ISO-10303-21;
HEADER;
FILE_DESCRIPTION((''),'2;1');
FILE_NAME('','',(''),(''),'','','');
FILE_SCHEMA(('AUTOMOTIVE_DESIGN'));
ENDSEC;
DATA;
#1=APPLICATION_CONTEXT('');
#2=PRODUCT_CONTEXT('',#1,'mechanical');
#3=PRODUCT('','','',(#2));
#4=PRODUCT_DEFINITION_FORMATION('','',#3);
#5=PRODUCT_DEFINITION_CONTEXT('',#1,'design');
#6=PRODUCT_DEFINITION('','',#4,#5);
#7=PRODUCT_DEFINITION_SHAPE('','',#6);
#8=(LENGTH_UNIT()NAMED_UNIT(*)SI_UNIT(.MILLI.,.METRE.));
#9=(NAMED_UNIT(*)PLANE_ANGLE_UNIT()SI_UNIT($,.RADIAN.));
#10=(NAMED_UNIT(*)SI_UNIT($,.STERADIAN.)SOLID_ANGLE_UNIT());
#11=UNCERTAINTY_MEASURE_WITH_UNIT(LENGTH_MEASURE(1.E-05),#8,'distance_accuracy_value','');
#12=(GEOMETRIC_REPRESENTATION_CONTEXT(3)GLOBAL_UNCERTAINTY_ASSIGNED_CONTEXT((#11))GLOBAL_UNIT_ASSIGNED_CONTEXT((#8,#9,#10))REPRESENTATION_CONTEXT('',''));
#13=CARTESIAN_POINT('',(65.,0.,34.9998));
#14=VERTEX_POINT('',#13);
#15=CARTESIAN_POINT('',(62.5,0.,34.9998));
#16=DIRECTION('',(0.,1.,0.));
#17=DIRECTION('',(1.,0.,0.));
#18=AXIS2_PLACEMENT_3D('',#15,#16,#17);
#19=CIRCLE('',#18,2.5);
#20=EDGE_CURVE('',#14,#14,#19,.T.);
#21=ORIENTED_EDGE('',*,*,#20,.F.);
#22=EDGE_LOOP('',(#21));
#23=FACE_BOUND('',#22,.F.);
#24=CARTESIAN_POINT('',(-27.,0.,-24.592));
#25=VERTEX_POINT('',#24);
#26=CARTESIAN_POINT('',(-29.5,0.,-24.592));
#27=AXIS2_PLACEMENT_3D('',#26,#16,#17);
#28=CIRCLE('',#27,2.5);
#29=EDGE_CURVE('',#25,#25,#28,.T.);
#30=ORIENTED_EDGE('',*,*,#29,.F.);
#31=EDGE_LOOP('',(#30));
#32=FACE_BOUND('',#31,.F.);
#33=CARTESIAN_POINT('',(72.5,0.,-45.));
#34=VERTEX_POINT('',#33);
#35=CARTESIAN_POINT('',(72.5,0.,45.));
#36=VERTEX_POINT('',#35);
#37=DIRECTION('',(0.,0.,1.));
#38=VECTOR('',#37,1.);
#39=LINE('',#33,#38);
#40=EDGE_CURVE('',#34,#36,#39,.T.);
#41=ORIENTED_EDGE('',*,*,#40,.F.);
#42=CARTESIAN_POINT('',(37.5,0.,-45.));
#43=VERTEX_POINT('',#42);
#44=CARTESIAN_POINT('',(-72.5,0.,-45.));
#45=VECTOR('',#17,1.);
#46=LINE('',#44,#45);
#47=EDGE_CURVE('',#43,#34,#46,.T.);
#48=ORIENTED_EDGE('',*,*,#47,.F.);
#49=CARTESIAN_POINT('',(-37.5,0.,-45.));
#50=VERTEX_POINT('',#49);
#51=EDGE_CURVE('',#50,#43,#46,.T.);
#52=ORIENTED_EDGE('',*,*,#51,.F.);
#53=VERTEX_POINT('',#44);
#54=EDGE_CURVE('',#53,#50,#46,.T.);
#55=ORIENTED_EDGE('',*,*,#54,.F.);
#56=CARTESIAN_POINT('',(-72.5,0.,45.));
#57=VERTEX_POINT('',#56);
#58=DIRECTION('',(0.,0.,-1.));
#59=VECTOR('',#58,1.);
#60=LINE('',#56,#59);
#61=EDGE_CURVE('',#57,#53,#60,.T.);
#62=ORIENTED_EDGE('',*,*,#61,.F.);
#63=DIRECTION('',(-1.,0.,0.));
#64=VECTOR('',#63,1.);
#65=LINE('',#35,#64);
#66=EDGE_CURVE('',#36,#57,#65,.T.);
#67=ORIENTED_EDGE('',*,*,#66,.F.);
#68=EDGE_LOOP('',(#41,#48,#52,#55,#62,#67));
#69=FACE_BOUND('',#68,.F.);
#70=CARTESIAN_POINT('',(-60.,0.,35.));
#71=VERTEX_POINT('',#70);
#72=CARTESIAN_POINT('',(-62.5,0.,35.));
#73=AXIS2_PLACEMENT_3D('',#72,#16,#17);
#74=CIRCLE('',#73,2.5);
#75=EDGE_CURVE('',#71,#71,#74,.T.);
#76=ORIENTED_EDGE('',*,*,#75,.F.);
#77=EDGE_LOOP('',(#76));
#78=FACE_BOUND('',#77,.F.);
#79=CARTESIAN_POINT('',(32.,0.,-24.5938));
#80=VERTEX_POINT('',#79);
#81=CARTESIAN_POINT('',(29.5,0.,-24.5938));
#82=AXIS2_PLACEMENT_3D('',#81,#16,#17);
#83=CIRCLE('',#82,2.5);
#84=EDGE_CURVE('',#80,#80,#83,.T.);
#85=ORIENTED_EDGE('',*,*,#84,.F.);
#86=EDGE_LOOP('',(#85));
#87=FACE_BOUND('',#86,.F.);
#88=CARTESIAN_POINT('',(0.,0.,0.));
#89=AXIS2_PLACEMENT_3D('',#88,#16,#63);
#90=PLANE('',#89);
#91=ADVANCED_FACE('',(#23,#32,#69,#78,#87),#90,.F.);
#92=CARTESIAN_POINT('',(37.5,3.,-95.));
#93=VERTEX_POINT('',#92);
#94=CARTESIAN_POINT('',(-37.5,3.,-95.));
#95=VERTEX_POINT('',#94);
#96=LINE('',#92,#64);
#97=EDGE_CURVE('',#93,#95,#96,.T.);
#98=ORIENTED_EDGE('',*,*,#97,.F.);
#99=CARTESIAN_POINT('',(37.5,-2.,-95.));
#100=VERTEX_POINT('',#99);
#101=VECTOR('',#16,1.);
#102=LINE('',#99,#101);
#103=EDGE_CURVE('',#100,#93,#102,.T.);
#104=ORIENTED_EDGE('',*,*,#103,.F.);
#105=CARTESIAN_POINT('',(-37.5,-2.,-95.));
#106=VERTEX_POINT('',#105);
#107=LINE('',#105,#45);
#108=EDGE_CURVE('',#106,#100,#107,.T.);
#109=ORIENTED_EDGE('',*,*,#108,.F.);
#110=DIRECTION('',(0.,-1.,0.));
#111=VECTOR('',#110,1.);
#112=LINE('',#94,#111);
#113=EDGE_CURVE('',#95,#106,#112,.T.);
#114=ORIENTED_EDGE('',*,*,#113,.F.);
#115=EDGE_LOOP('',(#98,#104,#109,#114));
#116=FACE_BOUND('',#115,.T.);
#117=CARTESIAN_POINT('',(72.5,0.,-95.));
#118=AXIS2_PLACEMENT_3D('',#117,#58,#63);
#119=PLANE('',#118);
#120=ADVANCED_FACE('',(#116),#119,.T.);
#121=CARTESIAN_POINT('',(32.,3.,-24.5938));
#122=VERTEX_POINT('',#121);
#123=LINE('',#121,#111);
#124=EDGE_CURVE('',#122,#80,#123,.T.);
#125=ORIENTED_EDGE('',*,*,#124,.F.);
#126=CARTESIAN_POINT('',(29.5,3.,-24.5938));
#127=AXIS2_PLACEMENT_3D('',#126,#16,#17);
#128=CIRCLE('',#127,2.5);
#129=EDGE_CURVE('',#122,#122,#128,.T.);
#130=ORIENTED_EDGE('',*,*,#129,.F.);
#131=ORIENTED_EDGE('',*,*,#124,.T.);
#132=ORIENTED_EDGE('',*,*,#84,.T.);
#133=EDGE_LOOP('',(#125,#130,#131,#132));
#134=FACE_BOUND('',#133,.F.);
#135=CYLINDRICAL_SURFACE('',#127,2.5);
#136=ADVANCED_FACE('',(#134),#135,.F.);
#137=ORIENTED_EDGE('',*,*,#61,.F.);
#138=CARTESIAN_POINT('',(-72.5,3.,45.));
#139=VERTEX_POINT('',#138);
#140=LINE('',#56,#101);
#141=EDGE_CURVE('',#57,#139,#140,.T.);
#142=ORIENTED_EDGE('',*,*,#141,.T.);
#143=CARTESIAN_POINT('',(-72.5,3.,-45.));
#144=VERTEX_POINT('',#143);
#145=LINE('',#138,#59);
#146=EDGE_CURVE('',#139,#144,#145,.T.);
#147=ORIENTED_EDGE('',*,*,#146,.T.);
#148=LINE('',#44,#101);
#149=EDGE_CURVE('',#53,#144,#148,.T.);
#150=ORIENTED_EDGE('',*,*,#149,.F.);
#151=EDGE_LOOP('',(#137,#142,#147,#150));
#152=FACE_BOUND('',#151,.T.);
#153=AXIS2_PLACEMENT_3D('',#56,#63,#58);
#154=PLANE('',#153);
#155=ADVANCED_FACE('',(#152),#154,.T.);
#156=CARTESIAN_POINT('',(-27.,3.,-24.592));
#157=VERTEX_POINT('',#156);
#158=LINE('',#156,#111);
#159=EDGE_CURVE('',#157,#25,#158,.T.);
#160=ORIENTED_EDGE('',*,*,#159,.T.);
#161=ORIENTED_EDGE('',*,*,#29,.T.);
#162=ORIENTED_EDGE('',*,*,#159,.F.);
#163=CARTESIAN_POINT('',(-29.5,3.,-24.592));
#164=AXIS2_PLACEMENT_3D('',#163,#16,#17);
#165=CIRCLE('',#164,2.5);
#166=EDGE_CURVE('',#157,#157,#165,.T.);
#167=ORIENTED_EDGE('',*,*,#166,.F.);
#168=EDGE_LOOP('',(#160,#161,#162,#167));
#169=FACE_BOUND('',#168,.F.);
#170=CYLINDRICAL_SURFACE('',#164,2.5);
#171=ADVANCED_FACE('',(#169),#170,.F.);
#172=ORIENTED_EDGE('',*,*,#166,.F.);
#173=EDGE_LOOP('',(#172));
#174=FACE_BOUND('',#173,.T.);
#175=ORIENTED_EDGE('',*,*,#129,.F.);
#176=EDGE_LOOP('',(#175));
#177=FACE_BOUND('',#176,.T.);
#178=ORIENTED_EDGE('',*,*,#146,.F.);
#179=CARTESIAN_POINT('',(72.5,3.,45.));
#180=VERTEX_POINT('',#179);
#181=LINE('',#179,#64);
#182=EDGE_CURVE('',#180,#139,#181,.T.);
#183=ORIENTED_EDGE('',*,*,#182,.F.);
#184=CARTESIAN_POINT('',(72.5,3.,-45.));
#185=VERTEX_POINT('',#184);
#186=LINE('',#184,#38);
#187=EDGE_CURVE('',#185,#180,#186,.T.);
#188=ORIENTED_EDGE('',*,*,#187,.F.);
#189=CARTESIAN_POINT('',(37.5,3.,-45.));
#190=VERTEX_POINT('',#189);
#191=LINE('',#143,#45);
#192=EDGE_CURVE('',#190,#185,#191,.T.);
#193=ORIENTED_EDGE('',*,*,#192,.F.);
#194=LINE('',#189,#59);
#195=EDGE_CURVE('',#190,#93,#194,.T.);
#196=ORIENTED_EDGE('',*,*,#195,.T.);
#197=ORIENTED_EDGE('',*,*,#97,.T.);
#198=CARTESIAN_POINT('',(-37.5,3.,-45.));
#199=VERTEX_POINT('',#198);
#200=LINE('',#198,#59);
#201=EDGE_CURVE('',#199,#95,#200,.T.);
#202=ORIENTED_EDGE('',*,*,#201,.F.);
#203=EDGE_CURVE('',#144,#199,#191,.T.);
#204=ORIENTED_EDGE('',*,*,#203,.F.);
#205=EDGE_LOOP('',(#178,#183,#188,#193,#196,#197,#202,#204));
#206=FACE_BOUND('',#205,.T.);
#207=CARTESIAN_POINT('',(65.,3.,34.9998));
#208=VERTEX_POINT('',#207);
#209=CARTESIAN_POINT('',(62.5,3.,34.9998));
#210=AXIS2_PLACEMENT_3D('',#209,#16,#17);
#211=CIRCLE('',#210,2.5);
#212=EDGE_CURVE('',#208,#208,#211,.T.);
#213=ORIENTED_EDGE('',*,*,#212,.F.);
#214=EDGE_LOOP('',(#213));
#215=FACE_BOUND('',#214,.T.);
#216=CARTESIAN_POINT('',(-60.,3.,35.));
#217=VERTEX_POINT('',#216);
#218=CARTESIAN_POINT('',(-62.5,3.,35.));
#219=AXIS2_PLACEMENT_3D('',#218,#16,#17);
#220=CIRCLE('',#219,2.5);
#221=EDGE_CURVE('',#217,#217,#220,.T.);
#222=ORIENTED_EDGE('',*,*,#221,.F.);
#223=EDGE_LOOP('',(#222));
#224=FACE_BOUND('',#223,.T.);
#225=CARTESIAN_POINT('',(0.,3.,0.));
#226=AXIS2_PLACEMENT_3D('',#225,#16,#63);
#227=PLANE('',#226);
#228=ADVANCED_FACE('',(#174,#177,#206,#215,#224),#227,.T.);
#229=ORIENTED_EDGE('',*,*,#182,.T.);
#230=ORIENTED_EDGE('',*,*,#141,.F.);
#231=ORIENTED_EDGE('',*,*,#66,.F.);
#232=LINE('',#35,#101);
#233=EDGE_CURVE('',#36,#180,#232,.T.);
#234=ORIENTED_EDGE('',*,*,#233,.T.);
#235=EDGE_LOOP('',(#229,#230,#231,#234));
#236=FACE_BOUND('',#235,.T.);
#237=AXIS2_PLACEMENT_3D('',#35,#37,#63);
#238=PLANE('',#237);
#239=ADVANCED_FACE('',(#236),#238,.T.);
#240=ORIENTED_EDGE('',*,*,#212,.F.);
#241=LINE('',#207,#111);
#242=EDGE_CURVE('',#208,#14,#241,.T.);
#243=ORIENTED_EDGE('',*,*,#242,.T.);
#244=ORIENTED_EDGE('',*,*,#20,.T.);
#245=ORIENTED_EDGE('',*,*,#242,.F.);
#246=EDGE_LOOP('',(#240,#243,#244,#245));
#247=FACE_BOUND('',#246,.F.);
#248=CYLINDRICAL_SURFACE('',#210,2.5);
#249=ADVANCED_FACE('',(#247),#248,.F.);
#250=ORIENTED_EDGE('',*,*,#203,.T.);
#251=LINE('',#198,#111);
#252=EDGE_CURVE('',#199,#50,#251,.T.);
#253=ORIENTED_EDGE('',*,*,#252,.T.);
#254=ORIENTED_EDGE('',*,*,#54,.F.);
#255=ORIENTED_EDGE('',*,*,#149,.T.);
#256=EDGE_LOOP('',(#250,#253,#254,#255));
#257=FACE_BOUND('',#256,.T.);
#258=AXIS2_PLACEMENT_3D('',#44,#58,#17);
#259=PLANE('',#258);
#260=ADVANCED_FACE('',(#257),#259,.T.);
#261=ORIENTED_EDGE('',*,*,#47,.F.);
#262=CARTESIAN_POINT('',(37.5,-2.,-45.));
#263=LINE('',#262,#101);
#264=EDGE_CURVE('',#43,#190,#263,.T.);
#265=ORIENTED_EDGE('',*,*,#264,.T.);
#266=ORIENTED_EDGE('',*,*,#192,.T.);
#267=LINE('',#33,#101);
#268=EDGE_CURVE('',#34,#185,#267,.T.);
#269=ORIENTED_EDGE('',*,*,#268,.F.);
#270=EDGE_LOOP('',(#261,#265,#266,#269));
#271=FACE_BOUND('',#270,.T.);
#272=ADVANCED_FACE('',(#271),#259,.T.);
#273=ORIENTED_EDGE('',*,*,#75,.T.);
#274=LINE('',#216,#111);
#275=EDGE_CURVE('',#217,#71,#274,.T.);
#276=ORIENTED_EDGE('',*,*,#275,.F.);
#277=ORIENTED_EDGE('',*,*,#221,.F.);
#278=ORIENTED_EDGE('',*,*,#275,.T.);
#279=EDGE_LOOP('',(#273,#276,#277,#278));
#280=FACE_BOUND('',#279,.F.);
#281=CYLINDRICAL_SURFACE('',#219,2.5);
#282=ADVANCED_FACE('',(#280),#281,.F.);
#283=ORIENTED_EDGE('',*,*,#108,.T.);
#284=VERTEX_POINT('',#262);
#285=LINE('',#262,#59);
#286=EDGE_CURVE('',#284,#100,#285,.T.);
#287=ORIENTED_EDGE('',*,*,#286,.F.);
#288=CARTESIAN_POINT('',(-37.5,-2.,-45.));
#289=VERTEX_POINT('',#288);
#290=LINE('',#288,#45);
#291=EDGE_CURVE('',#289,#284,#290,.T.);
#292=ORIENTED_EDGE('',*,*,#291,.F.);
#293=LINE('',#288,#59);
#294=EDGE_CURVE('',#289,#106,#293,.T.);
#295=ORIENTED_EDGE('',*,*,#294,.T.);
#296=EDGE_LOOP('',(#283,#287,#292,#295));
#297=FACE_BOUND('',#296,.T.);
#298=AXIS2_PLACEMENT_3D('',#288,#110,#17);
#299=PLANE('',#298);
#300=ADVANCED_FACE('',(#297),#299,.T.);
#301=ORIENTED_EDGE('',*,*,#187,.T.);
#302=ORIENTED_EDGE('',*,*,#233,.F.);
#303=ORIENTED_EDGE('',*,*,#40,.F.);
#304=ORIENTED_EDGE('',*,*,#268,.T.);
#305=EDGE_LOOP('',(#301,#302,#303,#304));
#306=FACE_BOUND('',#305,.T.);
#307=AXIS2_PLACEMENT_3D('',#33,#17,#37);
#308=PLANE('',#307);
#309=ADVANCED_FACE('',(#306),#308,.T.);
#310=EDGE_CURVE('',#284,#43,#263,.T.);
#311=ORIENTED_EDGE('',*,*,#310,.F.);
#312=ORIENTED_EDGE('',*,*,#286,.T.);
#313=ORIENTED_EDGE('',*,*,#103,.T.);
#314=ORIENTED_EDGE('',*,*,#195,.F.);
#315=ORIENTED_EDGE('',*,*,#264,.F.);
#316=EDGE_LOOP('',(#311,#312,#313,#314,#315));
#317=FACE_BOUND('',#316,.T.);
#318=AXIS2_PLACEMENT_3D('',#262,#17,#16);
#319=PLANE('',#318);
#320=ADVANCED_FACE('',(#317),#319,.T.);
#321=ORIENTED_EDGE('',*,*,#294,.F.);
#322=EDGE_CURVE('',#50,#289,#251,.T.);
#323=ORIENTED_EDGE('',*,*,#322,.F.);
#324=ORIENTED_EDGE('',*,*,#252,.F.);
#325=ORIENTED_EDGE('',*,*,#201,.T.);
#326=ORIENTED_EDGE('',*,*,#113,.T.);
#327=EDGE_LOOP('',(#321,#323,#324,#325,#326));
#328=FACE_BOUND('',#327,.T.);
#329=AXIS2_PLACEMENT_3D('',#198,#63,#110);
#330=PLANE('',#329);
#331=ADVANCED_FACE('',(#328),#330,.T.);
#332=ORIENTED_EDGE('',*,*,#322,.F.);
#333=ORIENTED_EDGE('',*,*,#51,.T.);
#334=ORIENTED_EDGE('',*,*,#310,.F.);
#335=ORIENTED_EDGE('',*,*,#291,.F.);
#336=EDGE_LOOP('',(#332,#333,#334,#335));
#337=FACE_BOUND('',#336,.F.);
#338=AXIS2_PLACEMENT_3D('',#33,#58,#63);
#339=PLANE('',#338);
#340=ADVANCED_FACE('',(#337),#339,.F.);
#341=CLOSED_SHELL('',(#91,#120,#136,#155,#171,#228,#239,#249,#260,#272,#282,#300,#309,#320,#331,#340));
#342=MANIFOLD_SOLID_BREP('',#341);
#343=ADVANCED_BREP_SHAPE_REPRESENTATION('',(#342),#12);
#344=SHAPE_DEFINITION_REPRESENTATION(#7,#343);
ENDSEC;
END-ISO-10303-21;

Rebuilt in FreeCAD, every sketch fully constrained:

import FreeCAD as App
import Part
import Sketcher
Q = App.Units.Quantity

doc = App.newDocument("Part")
body = doc.addObject("PartDesign::Body", "Body")

sketch1 = body.newObject("Sketcher::SketchObject", "Sketch")
sketch1.AttachmentSupport = (doc.getObject("XZ_Plane"), [""])
sketch1.MapMode = "FlatFace"
sketch1.addGeometry(Part.LineSegment(App.Vector(72, -45, 0), App.Vector(-72, -45, 0)), False)
sketch1.addGeometry(Part.LineSegment(App.Vector(-72, -45, 0), App.Vector(-72, 45, 0)), False)
sketch1.addGeometry(Part.LineSegment(App.Vector(-72, 45, 0), App.Vector(72, 45, 0)), False)
sketch1.addGeometry(Part.LineSegment(App.Vector(72, 45, 0), App.Vector(72, -45, 0)), False)
sketch1.addConstraint(Sketcher.Constraint("Coincident", 0, 2, 1, 1))
sketch1.addConstraint(Sketcher.Constraint("Coincident", 1, 2, 2, 1))
sketch1.addConstraint(Sketcher.Constraint("Coincident", 2, 2, 3, 1))
sketch1.addConstraint(Sketcher.Constraint("Coincident", 3, 2, 0, 1))
sketch1.addConstraint(Sketcher.Constraint("Horizontal", 0))
sketch1.addConstraint(Sketcher.Constraint("Vertical", 1))
sketch1.addConstraint(Sketcher.Constraint("Horizontal", 2))
sketch1.addConstraint(Sketcher.Constraint("Vertical", 3))
sketch1.addConstraint(Sketcher.Constraint("Symmetric", 0, 2, 2, 2, -1, 1))
sketch1.addConstraint(Sketcher.Constraint("DistanceX", 0, 2, 0, 1, Q("145 mm")))
sketch1.addConstraint(Sketcher.Constraint("DistanceY", 1, 1, 1, 2, Q("90 mm")))
pad1 = body.newObject("PartDesign::Pad", "Pad")
pad1.Profile = sketch1
pad1.Length = 3
pad1.Reversed = True

sketch2 = body.newObject("Sketcher::SketchObject", "Sketch001")
sketch2.AttachmentSupport = (doc.getObject("XY_Plane"), [""])
sketch2.MapMode = "FlatFace"
sketch2.AttachmentOffset = App.Placement(App.Vector(0, 0, -45), App.Rotation())
sketch2.addGeometry(Part.LineSegment(App.Vector(-38, 3, 0), App.Vector(38, 3, 0)), False)
sketch2.addGeometry(Part.LineSegment(App.Vector(38, 3, 0), App.Vector(38, -2, 0)), False)
sketch2.addGeometry(Part.LineSegment(App.Vector(38, -2, 0), App.Vector(-38, -2, 0)), False)
sketch2.addGeometry(Part.LineSegment(App.Vector(-38, -2, 0), App.Vector(-38, 3, 0)), False)
sketch2.addConstraint(Sketcher.Constraint("Coincident", 0, 2, 1, 1))
sketch2.addConstraint(Sketcher.Constraint("Coincident", 1, 2, 2, 1))
sketch2.addConstraint(Sketcher.Constraint("Coincident", 2, 2, 3, 1))
sketch2.addConstraint(Sketcher.Constraint("Coincident", 3, 2, 0, 1))
sketch2.addConstraint(Sketcher.Constraint("Horizontal", 0))
sketch2.addConstraint(Sketcher.Constraint("Vertical", 1))
sketch2.addConstraint(Sketcher.Constraint("Horizontal", 2))
sketch2.addConstraint(Sketcher.Constraint("Vertical", 3))
sketch2.addConstraint(Sketcher.Constraint("DistanceX", 0, 1, 0, 2, Q("75 mm")))
sketch2.addConstraint(Sketcher.Constraint("DistanceY", 1, 2, 1, 1, Q("5 mm")))
sketch2.addConstraint(Sketcher.Constraint("DistanceY", -1, 1, 0, 2, Q("3 mm")))
sketch2.addConstraint(Sketcher.Constraint("DistanceX", -1, 1, 0, 2, Q("37.5 mm")))
pad2 = body.newObject("PartDesign::Pad", "Pad001")
pad2.Profile = sketch2
pad2.Length = 50
pad2.Reversed = True

sketch3 = body.newObject("Sketcher::SketchObject", "Sketch002")
sketch3.AttachmentSupport = (doc.getObject("XZ_Plane"), [""])
sketch3.MapMode = "FlatFace"
sketch3.AttachmentOffset = App.Placement(App.Vector(0, 0, -3), App.Rotation())
sketch3.addGeometry(Part.Circle(App.Vector(62.5, 35, 0), App.Vector(0, 0, 1), 2.5), False)
sketch3.addGeometry(Part.Circle(App.Vector(-62.5, 35, 0), App.Vector(0, 0, 1), 2.5), False)
sketch3.addGeometry(Part.Circle(App.Vector(-29.5, -24.6, 0), App.Vector(0, 0, 1), 2.5), False)
sketch3.addGeometry(Part.Circle(App.Vector(29.5, -24.6, 0), App.Vector(0, 0, 1), 2.5), False)
sketch3.addConstraint(Sketcher.Constraint("Equal", 0, 1))
sketch3.addConstraint(Sketcher.Constraint("Equal", 1, 2))
sketch3.addConstraint(Sketcher.Constraint("Equal", 2, 3))
sketch3.addConstraint(Sketcher.Constraint("Symmetric", 0, 3, 1, 3, -2))
sketch3.addConstraint(Sketcher.Constraint("Diameter", 0, Q("5 mm")))
sketch3.addConstraint(Sketcher.Constraint("DistanceX", 1, 3, 0, 3, Q("125 mm")))
sketch3.addConstraint(Sketcher.Constraint("DistanceX", 1, 3, 2, 3, Q("33 mm")))
sketch3.addConstraint(Sketcher.Constraint("DistanceX", 2, 3, 3, 3, Q("59 mm")))
sketch3.addConstraint(Sketcher.Constraint("DistanceY", -1, 1, 1, 3, Q("35 mm")))
sketch3.addConstraint(Sketcher.Constraint("DistanceY", 2, 3, 1, 3, Q("59.592 mm")))
sketch3.addConstraint(Sketcher.Constraint("DistanceY", 3, 3, -1, 1, Q("24.5938 mm")))
pocket1 = body.newObject("PartDesign::Pocket", "Pocket")
pocket1.Profile = sketch3
pocket1.Type = "ThroughAll"
pocket1.Reversed = True

doc.recompute()
